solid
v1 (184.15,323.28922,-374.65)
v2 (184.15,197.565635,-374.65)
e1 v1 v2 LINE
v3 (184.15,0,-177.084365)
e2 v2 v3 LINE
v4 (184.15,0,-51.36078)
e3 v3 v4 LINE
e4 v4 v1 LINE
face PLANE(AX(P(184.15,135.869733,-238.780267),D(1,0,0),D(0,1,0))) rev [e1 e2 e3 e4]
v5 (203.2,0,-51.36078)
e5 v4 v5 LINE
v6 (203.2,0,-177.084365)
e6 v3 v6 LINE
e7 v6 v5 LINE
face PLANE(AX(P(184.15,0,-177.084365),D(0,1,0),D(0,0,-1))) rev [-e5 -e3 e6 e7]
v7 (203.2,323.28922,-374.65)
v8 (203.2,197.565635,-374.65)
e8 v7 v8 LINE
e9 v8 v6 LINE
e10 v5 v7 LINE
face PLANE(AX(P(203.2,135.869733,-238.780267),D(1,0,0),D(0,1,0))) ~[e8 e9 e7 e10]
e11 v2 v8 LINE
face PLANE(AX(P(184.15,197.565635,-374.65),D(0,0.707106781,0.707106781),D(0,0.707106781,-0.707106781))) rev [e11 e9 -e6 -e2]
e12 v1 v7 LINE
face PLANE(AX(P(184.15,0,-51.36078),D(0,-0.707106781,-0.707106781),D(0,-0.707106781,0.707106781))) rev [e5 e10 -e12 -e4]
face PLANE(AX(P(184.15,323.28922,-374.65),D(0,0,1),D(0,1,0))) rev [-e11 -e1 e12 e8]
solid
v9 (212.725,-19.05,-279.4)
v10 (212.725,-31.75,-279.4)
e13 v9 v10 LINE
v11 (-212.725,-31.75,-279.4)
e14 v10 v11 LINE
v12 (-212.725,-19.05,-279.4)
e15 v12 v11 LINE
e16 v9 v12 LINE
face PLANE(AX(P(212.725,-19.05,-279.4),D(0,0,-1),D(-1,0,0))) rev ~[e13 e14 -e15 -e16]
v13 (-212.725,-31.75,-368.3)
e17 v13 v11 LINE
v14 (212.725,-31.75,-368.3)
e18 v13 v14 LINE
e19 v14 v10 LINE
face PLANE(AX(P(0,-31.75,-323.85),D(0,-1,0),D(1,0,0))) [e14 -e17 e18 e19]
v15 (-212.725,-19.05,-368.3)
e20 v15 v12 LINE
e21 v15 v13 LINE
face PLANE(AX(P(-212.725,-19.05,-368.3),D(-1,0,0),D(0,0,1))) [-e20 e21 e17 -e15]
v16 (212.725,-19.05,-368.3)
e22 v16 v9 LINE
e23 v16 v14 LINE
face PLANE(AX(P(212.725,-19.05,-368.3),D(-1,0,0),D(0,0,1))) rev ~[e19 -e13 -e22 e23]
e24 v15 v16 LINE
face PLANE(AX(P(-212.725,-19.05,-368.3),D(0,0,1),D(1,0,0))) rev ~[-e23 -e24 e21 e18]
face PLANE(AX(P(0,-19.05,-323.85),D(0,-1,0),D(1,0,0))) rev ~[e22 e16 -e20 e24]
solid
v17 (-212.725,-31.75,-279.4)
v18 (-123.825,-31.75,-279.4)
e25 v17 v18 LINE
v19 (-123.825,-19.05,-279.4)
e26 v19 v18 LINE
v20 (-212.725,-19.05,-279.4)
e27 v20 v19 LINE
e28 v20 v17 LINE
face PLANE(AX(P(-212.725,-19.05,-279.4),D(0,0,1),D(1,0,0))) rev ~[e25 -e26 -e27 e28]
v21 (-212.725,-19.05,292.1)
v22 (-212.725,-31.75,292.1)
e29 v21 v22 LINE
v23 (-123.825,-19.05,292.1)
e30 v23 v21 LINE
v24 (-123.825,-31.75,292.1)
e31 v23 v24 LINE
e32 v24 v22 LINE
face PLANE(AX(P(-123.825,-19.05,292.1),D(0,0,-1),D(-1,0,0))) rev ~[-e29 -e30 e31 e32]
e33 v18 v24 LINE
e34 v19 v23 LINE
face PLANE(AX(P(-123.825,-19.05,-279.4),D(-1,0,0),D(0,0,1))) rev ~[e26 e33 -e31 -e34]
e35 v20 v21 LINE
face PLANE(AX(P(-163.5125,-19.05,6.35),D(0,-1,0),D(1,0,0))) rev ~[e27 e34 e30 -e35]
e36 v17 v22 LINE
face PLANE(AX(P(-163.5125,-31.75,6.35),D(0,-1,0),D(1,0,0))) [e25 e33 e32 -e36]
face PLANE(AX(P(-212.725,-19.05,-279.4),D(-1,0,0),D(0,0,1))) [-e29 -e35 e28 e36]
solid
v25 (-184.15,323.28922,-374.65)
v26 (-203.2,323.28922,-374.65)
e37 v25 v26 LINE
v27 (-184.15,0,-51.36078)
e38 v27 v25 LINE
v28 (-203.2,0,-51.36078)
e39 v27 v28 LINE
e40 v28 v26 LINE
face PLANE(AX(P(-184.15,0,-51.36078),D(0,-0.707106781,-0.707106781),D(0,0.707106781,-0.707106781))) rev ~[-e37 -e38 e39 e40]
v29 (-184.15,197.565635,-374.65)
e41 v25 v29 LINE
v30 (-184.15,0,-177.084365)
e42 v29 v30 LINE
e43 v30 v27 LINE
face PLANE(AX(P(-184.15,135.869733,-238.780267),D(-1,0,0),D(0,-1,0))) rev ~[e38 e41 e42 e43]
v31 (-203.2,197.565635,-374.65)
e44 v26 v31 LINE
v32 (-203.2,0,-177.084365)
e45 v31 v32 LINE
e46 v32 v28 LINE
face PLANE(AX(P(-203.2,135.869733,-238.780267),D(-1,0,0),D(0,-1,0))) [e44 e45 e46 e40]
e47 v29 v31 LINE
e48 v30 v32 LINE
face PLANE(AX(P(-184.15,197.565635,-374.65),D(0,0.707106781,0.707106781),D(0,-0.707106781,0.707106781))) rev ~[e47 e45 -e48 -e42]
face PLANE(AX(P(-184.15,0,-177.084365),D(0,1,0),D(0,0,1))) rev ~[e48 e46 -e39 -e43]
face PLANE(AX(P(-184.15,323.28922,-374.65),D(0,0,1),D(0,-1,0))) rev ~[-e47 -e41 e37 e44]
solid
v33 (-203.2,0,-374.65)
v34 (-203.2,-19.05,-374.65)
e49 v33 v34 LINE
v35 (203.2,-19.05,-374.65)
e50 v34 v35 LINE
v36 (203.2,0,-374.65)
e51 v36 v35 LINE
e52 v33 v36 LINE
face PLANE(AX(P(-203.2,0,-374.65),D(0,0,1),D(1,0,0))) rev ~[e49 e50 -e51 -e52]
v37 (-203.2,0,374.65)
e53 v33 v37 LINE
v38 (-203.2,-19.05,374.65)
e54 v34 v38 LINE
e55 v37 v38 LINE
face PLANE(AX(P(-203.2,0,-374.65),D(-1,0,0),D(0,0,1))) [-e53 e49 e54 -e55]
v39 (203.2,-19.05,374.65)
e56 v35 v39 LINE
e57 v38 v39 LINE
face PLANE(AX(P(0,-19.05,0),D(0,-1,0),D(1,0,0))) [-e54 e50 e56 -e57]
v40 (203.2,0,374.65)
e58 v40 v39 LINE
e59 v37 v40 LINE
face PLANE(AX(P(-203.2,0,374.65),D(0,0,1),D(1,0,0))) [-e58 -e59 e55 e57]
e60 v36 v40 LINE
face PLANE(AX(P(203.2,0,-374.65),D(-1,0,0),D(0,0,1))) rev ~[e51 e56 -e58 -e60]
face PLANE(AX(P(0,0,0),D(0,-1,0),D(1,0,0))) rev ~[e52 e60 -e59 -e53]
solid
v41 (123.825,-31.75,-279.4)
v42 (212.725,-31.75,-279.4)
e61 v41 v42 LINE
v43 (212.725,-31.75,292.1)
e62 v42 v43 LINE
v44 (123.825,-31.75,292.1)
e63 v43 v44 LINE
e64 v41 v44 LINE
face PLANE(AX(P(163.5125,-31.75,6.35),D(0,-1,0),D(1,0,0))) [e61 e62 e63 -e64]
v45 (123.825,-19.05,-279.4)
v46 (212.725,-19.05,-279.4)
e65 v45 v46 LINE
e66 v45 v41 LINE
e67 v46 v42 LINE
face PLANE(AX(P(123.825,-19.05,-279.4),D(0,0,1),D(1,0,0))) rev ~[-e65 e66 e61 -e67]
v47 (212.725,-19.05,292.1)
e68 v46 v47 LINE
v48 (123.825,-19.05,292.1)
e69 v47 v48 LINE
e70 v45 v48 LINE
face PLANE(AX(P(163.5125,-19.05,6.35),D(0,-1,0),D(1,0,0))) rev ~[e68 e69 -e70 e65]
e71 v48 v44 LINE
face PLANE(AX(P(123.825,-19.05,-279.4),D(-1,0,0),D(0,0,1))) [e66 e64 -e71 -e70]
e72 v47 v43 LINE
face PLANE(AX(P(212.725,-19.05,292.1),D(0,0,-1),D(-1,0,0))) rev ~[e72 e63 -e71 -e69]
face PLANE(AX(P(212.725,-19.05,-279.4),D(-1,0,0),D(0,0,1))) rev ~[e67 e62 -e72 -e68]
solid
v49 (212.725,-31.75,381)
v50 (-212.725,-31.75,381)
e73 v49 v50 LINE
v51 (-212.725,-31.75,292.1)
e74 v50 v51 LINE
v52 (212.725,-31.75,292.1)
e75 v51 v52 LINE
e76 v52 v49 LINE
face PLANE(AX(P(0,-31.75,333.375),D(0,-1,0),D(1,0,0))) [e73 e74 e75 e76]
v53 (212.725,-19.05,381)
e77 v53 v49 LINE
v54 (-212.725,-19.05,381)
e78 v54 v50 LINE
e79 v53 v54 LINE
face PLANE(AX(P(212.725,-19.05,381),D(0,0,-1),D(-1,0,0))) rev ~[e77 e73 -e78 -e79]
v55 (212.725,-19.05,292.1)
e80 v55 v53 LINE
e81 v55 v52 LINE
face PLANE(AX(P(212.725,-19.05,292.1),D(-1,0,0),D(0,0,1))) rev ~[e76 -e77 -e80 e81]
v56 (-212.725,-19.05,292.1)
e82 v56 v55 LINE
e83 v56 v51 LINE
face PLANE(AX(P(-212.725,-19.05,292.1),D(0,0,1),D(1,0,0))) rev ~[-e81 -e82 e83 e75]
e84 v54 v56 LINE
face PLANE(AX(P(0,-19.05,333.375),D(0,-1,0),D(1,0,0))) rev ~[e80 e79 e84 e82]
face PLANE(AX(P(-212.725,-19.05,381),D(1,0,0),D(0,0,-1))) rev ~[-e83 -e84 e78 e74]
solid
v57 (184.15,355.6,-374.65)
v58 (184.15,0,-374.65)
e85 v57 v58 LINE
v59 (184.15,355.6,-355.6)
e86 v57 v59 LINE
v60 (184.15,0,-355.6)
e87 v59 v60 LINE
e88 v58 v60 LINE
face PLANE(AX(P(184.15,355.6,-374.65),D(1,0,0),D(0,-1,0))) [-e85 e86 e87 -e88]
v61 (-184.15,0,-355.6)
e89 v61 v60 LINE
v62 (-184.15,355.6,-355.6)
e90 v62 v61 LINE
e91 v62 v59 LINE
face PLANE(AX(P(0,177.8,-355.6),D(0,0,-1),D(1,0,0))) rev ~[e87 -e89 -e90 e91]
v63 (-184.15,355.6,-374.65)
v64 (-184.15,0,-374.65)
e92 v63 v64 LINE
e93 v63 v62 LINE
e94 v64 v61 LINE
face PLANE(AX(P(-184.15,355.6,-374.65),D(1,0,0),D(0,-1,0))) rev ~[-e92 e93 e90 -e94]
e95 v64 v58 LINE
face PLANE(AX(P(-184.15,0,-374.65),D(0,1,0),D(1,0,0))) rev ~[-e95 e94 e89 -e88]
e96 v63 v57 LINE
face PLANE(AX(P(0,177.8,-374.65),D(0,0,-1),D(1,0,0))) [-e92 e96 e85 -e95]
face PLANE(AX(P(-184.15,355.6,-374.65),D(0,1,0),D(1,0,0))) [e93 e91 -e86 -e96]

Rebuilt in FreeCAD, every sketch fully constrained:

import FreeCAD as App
import Part
import Sketcher
Q = App.Units.Quantity

doc = App.newDocument("Part")
params = doc.addObject("Spreadsheet::Sheet", "Params")
for row, (alias, value) in enumerate([
    ("sketch1_width", "16 in"),
    ("sketch1_height", "29.5 in"),
    ("pad1_length", "0.75 in"),
    ("sketch2_height", "14 in"),
    ("sketch2_width", "14.5 in"),
    ("pad2_length", "0.75 in"),
    ("sketch3_length", "18 in"),
    ("sketch3_length2", "11 in"),
    ("pad3_length", "0.75 in"),
    ("sketch4_height", "3.5 in"),
    ("sketch4_width", "16.75 in"),
    ("pad4_length", "0.5 in"),
    ("sketch5_height", "3.5 in"),
    ("sketch5_width", "16.75 in"),
    ("pad5_length", "0.5 in"),
    ("sketch6_width", "3.5 in"),
    ("sketch6_height", "22.5 in"),
    ("pad6_length", "0.5 in"),
    ("sketch7_width", "3.5 in"),
    ("sketch7_height", "22.5 in"),
    ("pad7_length", "0.5 in"),
], start=1):
    params.set(f"A{row}", alias)
    params.set(f"B{row}", "=" + value)
    params.setAlias(f"B{row}", alias)

body = doc.addObject("PartDesign::Body", "Body")

# Sketch on XZ plane
sketch1 = body.newObject("Sketcher::SketchObject", "Sketch")
sketch1.AttachmentSupport = (doc.getObject("XZ_Plane"), [""])
sketch1.MapMode = "FlatFace"
sketch1.addGeometry([
    Part.LineSegment(App.Vector(-203, 375, 0), App.Vector(-203, -375, 0)),
    Part.LineSegment(App.Vector(-203, -375, 0), App.Vector(203, -375, 0)),
    Part.LineSegment(App.Vector(203, -375, 0), App.Vector(203, 375, 0)),
    Part.LineSegment(App.Vector(203, 375, 0), App.Vector(-203, 375, 0)),
], False)
sketch1.addConstraint([
    Sketcher.Constraint("Coincident", 0, 2, 1, 1),
    Sketcher.Constraint("Coincident", 1, 2, 2, 1),
    Sketcher.Constraint("Coincident", 2, 2, 3, 1),
    Sketcher.Constraint("Coincident", 3, 2, 0, 1),
    Sketcher.Constraint("Vertical", 0),
    Sketcher.Constraint("Horizontal", 1),
    Sketcher.Constraint("Vertical", 2),
    Sketcher.Constraint("Horizontal", 3),
    Sketcher.Constraint("Symmetric", 0, 2, 2, 2, -1, 1),
    Sketcher.Constraint("DistanceX", 1, 1, 1, 2, Q("16 in")),
    Sketcher.Constraint("DistanceY", 0, 2, 0, 1, Q("29.5 in")),
])
sketch1.setExpression("Constraints[9]", "Params.sketch1_width")
sketch1.setExpression("Constraints[10]", "Params.sketch1_height")
pad1 = body.newObject("PartDesign::Pad", "Pad")
pad1.Profile = sketch1
pad1.setExpression("Length", "Params.pad1_length")
body2 = doc.addObject("PartDesign::Body", "Body001")

# Sketch on XY plane
sketch2 = body2.newObject("Sketcher::SketchObject", "Sketch001")
sketch2.AttachmentSupport = (doc.getObject("XY_Plane001"), [""])
sketch2.MapMode = "FlatFace"
sketch2.AttachmentOffset = App.Placement(App.Vector(0, 0, -14.75 * 25.4), App.Rotation())
sketch2.addGeometry([
    Part.LineSegment(App.Vector(-184, 0, 0), App.Vector(-184, 356, 0)),
    Part.LineSegment(App.Vector(-184, 356, 0), App.Vector(184, 356, 0)),
    Part.LineSegment(App.Vector(184, 356, 0), App.Vector(184, 0, 0)),
    Part.LineSegment(App.Vector(184, 0, 0), App.Vector(-184, 0, 0)),
], False)
sketch2.addConstraint([
    Sketcher.Constraint("Coincident", 0, 2, 1, 1),
    Sketcher.Constraint("Coincident", 1, 2, 2, 1),
    Sketcher.Constraint("Coincident", 2, 2, 3, 1),
    Sketcher.Constraint("Coincident", 3, 2, 0, 1),
    Sketcher.Constraint("Vertical", 0),
    Sketcher.Constraint("Horizontal", 1),
    Sketcher.Constraint("Vertical", 2),
    Sketcher.Constraint("Horizontal", 3),
    Sketcher.Constraint("Symmetric", 2, 2, 3, 2, -1, 1),
    Sketcher.Constraint("DistanceY", 0, 1, 0, 2, Q("14 in")),
    Sketcher.Constraint("DistanceX", 1, 1, 1, 2, Q("14.5 in")),
])
sketch2.setExpression("Constraints[9]", "Params.sketch2_height")
sketch2.setExpression("Constraints[10]", "Params.sketch2_width")
pad2 = body2.newObject("PartDesign::Pad", "Pad001")
pad2.Profile = sketch2
pad2.setExpression("Length", "Params.pad2_length")
body3 = doc.addObject("PartDesign::Body", "Body002")

# Sketch on YZ plane
sketch3 = body3.newObject("Sketcher::SketchObject", "Sketch002")
sketch3.AttachmentSupport = (doc.getObject("YZ_Plane002"), [""])
sketch3.MapMode = "FlatFace"
sketch3.AttachmentOffset = App.Placement(App.Vector(0, 0, -7.25 * 25.4), App.Rotation())
sketch3.addGeometry([
    Part.LineSegment(App.Vector(0, -51, 0), App.Vector(323, -375, 0)),
    Part.LineSegment(App.Vector(323, -375, 0), App.Vector(198, -375, 0)),
    Part.LineSegment(App.Vector(198, -375, 0), App.Vector(0, -177, 0)),
    Part.LineSegment(App.Vector(0, -177, 0), App.Vector(0, -51, 0)),
], False)
sketch3.addConstraint([
    Sketcher.Constraint("Coincident", 0, 2, 1, 1),
    Sketcher.Constraint("Coincident", 1, 2, 2, 1),
    Sketcher.Constraint("Coincident", 2, 2, 3, 1),
    Sketcher.Constraint("Coincident", 3, 2, 0, 1),
    Sketcher.Constraint("Horizontal", 1),
    Sketcher.Constraint("Vertical", 3),
    Sketcher.Constraint("PointOnObject", 2, 2, -2),
    Sketcher.Constraint("Parallel", 0, 2),
    Sketcher.Constraint("Equal", 1, 3),
    Sketcher.Constraint("Distance", 0, Q("18 in")),
    Sketcher.Constraint("Distance", 2, Q("11 in")),
    Sketcher.Constraint("DistanceY", 0, 2, -1, 1, Q("14.75 in")),
])
sketch3.setExpression("Constraints[9]", "Params.sketch3_length")
sketch3.setExpression("Constraints[10]", "Params.sketch3_length2")
pad3 = body3.newObject("PartDesign::Pad", "Pad002")
pad3.Profile = sketch3
pad3.setExpression("Length", "Params.pad3_length")
pad3.Reversed = True
body4 = doc.addObject("PartDesign::Body", "Body003")
doc.recompute()

mirroring = doc.addObject("Part::Mirroring", "Mirroring")
mirroring.Source = body3
mirroring.Base = App.Vector(0, 0, 0)
mirroring.Normal = App.Vector(1, 0, 0)
body4.BaseFeature = mirroring
doc.recompute()
body5 = doc.addObject("PartDesign::Body", "Body004")

# Sketch on XZ plane
sketch4 = body5.newObject("Sketcher::SketchObject", "Sketch003")
sketch4.AttachmentSupport = (doc.getObject("XZ_Plane004"), [""])
sketch4.MapMode = "FlatFace"
sketch4.AttachmentOffset = App.Placement(App.Vector(0, 0, 0.75 * 25.4), App.Rotation())
sketch4.addGeometry([
    Part.LineSegment(App.Vector(213, 292, 0), App.Vector(213, 381, 0)),
    Part.LineSegment(App.Vector(213, 381, 0), App.Vector(-213, 381, 0)),
    Part.LineSegment(App.Vector(-213, 381, 0), App.Vector(-213, 292, 0)),
    Part.LineSegment(App.Vector(-213, 292, 0), App.Vector(213, 292, 0)),
], False)
sketch4.addConstraint([
    Sketcher.Constraint("Coincident", 0, 2, 1, 1),
    Sketcher.Constraint("Coincident", 1, 2, 2, 1),
    Sketcher.Constraint("Coincident", 2, 2, 3, 1),
    Sketcher.Constraint("Coincident", 3, 2, 0, 1),
    Sketcher.Constraint("Vertical", 0),
    Sketcher.Constraint("Horizontal", 1),
    Sketcher.Constraint("Vertical", 2),
    Sketcher.Constraint("Horizontal", 3),
    Sketcher.Constraint("DistanceY", 0, 1, 0, 2, Q("3.5 in")),
    Sketcher.Constraint("DistanceY", -1, 1, 0, 2, Q("15 in")),
    Sketcher.Constraint("DistanceX", 1, 2, 1, 1, Q("16.75 in")),
    Sketcher.Constraint("DistanceX", -1, 1, 0, 2, Q("8.375 in")),
])
sketch4.setExpression("Constraints[8]", "Params.sketch4_height")
sketch4.setExpression("Constraints[10]", "Params.sketch4_width")
pad4 = body5.newObject("PartDesign::Pad", "Pad003")
pad4.Profile = sketch4
pad4.setExpression("Length", "Params.pad4_length")
body6 = doc.addObject("PartDesign::Body", "Body005")

# Sketch on XZ plane
sketch5 = body6.newObject("Sketcher::SketchObject", "Sketch004")
sketch5.AttachmentSupport = (doc.getObject("XZ_Plane005"), [""])
sketch5.MapMode = "FlatFace"
sketch5.AttachmentOffset = App.Placement(App.Vector(0, 0, 0.75 * 25.4), App.Rotation())
sketch5.addGeometry([
    Part.LineSegment(App.Vector(-213, -279, 0), App.Vector(-213, -368, 0)),
    Part.LineSegment(App.Vector(-213, -368, 0), App.Vector(213, -368, 0)),
    Part.LineSegment(App.Vector(213, -368, 0), App.Vector(213, -279, 0)),
    Part.LineSegment(App.Vector(213, -279, 0), App.Vector(-213, -279, 0)),
], False)
sketch5.addConstraint([
    Sketcher.Constraint("Coincident", 0, 2, 1, 1),
    Sketcher.Constraint("Coincident", 1, 2, 2, 1),
    Sketcher.Constraint("Coincident", 2, 2, 3, 1),
    Sketcher.Constraint("Coincident", 3, 2, 0, 1),
    Sketcher.Constraint("Vertical", 0),
    Sketcher.Constraint("Horizontal", 1),
    Sketcher.Constraint("Vertical", 2),
    Sketcher.Constraint("Horizontal", 3),
    Sketcher.Constraint("DistanceY", 0, 2, 0, 1, Q("3.5 in")),
    Sketcher.Constraint("DistanceY", 2, 2, -1, 1, Q("11 in")),
    Sketcher.Constraint("DistanceX", 1, 1, 1, 2, Q("16.75 in")),
    Sketcher.Constraint("DistanceX", 0, 2, -1, 1, Q("8.375 in")),
])
sketch5.setExpression("Constraints[8]", "Params.sketch5_height")
sketch5.setExpression("Constraints[10]", "Params.sketch5_width")
pad5 = body6.newObject("PartDesign::Pad", "Pad004")
pad5.Profile = sketch5
pad5.setExpression("Length", "Params.pad5_length")
body7 = doc.addObject("PartDesign::Body", "Body006")

# Sketch on XZ plane
sketch6 = body7.newObject("Sketcher::SketchObject", "Sketch005")
sketch6.AttachmentSupport = (doc.getObject("XZ_Plane006"), [""])
sketch6.MapMode = "FlatFace"
sketch6.AttachmentOffset = App.Placement(App.Vector(0, 0, 0.75 * 25.4), App.Rotation())
sketch6.addGeometry([
    Part.LineSegment(App.Vector(-124, -279, 0), App.Vector(-124, 292, 0)),
    Part.LineSegment(App.Vector(-124, 292, 0), App.Vector(-213, 292, 0)),
    Part.LineSegment(App.Vector(-213, 292, 0), App.Vector(-213, -279, 0)),
    Part.LineSegment(App.Vector(-213, -279, 0), App.Vector(-124, -279, 0)),
], False)
sketch6.addConstraint([
    Sketcher.Constraint("Coincident", 0, 2, 1, 1),
    Sketcher.Constraint("Coincident", 1, 2, 2, 1),
    Sketcher.Constraint("Coincident", 2, 2, 3, 1),
    Sketcher.Constraint("Coincident", 3, 2, 0, 1),
    Sketcher.Constraint("Vertical", 0),
    Sketcher.Constraint("Horizontal", 1),
    Sketcher.Constraint("Vertical", 2),
    Sketcher.Constraint("Horizontal", 3),
    Sketcher.Constraint("DistanceX", 1, 2, 1, 1, Q("3.5 in")),
    Sketcher.Constraint("DistanceY", 0, 1, 0, 2, Q("22.5 in")),
    Sketcher.Constraint("DistanceY", 2, 2, -1, 1, Q("11 in")),
    Sketcher.Constraint("DistanceX", 0, 2, -1, 1, Q("4.875 in")),
])
sketch6.setExpression("Constraints[8]", "Params.sketch6_width")
sketch6.setExpression("Constraints[9]", "Params.sketch6_height")
pad6 = body7.newObject("PartDesign::Pad", "Pad005")
pad6.Profile = sketch6
pad6.setExpression("Length", "Params.pad6_length")
body8 = doc.addObject("PartDesign::Body", "Body007")

# Sketch on XZ plane
sketch7 = body8.newObject("Sketcher::SketchObject", "Sketch006")
sketch7.AttachmentSupport = (doc.getObject("XZ_Plane007"), [""])
sketch7.MapMode = "FlatFace"
sketch7.AttachmentOffset = App.Placement(App.Vector(0, 0, 0.75 * 25.4), App.Rotation())
sketch7.addGeometry([
    Part.LineSegment(App.Vector(124, 292, 0), App.Vector(124, -279, 0)),
    Part.LineSegment(App.Vector(124, -279, 0), App.Vector(213, -279, 0)),
    Part.LineSegment(App.Vector(213, -279, 0), App.Vector(213, 292, 0)),
    Part.LineSegment(App.Vector(213, 292, 0), App.Vector(124, 292, 0)),
], False)
sketch7.addConstraint([
    Sketcher.Constraint("Coincident", 0, 2, 1, 1),
    Sketcher.Constraint("Coincident", 1, 2, 2, 1),
    Sketcher.Constraint("Coincident", 2, 2, 3, 1),
    Sketcher.Constraint("Coincident", 3, 2, 0, 1),
    Sketcher.Constraint("Vertical", 0),
    Sketcher.Constraint("Horizontal", 1),
    Sketcher.Constraint("Vertical", 2),
    Sketcher.Constraint("Horizontal", 3),
    Sketcher.Constraint("DistanceX", 1, 1, 1, 2, Q("3.5 in")),
    Sketcher.Constraint("DistanceY", 0, 2, 0, 1, Q("22.5 in")),
    Sketcher.Constraint("DistanceY", 0, 2, -1, 1, Q("11 in")),
    Sketcher.Constraint("DistanceX", -1, 1, 0, 2, Q("4.875 in")),
])
sketch7.setExpression("Constraints[8]", "Params.sketch7_width")
sketch7.setExpression("Constraints[9]", "Params.sketch7_height")
pad7 = body8.newObject("PartDesign::Pad", "Pad006")
pad7.Profile = sketch7
pad7.setExpression("Length", "Params.pad7_length")
mirroring.Visibility = False

doc.recompute()
